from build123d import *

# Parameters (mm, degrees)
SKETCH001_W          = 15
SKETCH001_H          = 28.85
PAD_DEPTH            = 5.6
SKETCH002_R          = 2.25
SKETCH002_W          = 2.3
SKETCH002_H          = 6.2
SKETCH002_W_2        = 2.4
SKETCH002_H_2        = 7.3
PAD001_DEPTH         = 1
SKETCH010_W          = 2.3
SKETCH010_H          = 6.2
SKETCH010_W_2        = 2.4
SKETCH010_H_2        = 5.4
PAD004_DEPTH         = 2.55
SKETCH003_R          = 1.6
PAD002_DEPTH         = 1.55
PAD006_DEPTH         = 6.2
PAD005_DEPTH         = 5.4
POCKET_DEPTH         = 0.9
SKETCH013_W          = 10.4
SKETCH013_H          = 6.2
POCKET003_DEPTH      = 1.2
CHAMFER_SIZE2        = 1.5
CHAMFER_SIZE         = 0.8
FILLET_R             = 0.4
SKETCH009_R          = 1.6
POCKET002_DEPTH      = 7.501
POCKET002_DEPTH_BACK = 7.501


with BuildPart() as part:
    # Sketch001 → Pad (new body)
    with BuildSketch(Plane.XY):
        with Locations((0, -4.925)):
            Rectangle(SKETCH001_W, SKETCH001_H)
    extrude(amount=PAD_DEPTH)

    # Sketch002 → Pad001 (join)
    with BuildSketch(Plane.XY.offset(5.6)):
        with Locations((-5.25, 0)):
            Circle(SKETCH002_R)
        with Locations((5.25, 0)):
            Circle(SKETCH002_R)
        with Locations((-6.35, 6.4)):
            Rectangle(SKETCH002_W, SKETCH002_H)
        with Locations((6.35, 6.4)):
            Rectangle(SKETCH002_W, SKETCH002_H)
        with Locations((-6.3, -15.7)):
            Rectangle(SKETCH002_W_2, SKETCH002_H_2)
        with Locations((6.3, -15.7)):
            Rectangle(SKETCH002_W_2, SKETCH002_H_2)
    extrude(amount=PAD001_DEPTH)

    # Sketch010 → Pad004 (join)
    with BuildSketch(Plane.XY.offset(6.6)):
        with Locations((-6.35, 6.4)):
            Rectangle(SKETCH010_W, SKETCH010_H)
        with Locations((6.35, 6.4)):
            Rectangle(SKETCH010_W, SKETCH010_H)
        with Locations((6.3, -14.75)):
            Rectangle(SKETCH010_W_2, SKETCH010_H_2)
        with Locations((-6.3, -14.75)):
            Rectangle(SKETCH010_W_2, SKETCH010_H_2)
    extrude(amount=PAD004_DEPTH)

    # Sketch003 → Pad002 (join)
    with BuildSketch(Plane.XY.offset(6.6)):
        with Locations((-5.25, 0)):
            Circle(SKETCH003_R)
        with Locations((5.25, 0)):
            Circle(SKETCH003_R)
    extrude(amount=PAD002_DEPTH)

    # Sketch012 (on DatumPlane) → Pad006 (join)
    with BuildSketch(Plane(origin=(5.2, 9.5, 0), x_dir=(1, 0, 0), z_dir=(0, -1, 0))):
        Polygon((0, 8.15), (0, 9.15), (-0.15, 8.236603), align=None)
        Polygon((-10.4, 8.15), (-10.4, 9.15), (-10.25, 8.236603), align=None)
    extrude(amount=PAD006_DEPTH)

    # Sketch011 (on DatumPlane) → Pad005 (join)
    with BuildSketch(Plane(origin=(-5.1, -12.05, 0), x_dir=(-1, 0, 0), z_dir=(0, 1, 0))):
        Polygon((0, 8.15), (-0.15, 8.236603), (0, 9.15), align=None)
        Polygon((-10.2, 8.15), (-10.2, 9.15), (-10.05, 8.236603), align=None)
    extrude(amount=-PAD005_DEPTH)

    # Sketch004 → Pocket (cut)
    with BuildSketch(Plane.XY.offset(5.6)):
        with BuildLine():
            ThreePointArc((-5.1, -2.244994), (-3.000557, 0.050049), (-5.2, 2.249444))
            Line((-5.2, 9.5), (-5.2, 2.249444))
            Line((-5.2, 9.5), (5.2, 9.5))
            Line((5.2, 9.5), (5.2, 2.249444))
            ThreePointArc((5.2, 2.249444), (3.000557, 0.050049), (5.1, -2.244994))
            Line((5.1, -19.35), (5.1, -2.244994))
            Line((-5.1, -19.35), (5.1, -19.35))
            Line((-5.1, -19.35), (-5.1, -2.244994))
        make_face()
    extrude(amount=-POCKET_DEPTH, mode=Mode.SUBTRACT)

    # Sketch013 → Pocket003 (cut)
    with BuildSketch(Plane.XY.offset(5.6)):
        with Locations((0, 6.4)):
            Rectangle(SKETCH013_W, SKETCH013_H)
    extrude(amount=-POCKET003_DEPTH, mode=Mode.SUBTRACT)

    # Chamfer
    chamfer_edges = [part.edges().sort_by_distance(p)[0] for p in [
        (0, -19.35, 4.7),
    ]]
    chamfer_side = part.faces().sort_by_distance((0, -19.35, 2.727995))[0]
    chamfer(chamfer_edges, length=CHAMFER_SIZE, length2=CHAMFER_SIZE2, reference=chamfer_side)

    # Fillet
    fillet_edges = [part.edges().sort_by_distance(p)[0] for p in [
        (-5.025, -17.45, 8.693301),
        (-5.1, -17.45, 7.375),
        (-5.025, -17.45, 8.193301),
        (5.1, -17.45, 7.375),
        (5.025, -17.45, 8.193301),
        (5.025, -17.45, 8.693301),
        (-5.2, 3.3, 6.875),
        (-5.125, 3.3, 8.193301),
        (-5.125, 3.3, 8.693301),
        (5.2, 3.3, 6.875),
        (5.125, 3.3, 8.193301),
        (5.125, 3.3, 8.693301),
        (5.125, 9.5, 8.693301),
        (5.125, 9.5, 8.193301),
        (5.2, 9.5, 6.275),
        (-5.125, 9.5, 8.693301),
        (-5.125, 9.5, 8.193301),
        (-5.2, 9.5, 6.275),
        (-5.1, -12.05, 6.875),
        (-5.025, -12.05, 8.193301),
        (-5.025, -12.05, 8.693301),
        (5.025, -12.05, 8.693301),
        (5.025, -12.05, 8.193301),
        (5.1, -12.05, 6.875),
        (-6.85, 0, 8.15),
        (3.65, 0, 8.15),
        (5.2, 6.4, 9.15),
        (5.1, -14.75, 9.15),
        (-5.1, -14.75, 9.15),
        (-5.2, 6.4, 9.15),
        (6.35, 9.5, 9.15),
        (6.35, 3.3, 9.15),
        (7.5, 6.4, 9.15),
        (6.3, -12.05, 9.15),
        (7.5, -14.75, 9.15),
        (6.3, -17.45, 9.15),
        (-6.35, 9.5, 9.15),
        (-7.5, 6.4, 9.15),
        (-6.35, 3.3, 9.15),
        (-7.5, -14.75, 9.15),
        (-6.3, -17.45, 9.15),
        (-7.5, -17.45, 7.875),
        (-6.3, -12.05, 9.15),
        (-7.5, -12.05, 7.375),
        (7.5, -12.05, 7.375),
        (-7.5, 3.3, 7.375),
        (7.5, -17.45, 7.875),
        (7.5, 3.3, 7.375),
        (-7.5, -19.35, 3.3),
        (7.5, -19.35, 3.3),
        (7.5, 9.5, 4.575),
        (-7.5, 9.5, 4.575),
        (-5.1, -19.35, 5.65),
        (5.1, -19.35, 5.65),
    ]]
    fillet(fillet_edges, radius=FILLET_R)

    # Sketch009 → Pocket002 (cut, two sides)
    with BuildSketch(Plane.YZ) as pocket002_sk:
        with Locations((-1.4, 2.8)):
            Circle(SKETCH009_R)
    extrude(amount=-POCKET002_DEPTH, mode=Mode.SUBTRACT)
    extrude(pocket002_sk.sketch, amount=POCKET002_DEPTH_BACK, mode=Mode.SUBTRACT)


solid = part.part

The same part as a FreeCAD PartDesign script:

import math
import FreeCAD as App
import Part
import Sketcher
from FreeCAD import Vector


def edges_at(feature, points):
    """Names of the edges that pass closest to the given points."""
    edges = feature.Shape.Edges
    near = lambda p: min(range(len(edges)), key=lambda i: edges[i].distToShape(Part.Vertex(*p))[0])
    return sorted({f"Edge{near(p) + 1}" for p in points})


def add_polygon(sketch, points):
    """Adds a closed chain of lines whose ends are joined by coincident constraints."""
    first, n = sketch.GeometryCount, len(points)
    for a, b in zip(points, points[1:] + points[:1]):
        sketch.addGeometry(Part.LineSegment(App.Vector(*a, 0), App.Vector(*b, 0)), False)
    for i in range(n):
        sketch.addConstraint(Sketcher.Constraint("Coincident", first + i, 2, first + (i + 1) % n, 1))

doc = App.newDocument("Part")
body = doc.addObject("PartDesign::Body", "Body")

# Sketch on XY plane
sketch1 = body.newObject("Sketcher::SketchObject", "Sketch")
sketch1.AttachmentSupport = (doc.getObject("XY_Plane"), [""])
sketch1.MapMode = "FlatFace"
add_polygon(sketch1, [(-7.5, 9.5), (-7.5, -19.35), (7.5, -19.35), (7.5, 9.5)])  # lines 0-3
sketch1.addConstraint(Sketcher.Constraint("Vertical", 0))
sketch1.addConstraint(Sketcher.Constraint("Horizontal", 1))
sketch1.addConstraint(Sketcher.Constraint("Vertical", 2))
sketch1.addConstraint(Sketcher.Constraint("Horizontal", 3))
sketch1.addConstraint(Sketcher.Constraint("DistanceX", 1, 1, 1, 2, 15.0))
sketch1.addConstraint(Sketcher.Constraint("DistanceY", 0, 2, 0, 1, 28.85))
sketch1.addConstraint(Sketcher.Constraint("DistanceX", 0, 2, -1, 1, 7.5))
sketch1.addConstraint(Sketcher.Constraint("DistanceY", -1, 1, 2, 2, 9.5))
pad1 = body.newObject("PartDesign::Pad", "Pad")
pad1.Profile = sketch1
pad1.Length = 5.6

# Sketch on XY plane
sketch2 = body.newObject("Sketcher::SketchObject", "Sketch001")
sketch2.AttachmentSupport = (doc.getObject("XY_Plane"), [""])
sketch2.MapMode = "FlatFace"
sketch2.AttachmentOffset = App.Placement(Vector(0, 0, 5.6), App.Rotation())
sketch2.addGeometry(Part.Circle(Vector(-5.25, 0, 0), Vector(0, 0, 1), 2.25), False)  # 0
sketch2.addGeometry(Part.Circle(Vector(5.25, 0, 0), Vector(0, 0, 1), 2.25), False)  # 1
add_polygon(sketch2, [(-7.5, 9.5), (-7.5, 3.3), (-5.2, 3.3), (-5.2, 9.5)])  # lines 2-5
add_polygon(sketch2, [(5.2, 9.5), (5.2, 3.3), (7.5, 3.3), (7.5, 9.5)])  # lines 6-9
add_polygon(sketch2, [(-7.5, -12.05), (-7.5, -19.35), (-5.1, -19.35), (-5.1, -12.05)])  # lines 10-13
add_polygon(sketch2, [(5.1, -12.05), (5.1, -19.35), (7.5, -19.35), (7.5, -12.05)])  # lines 14-17
sketch2.addConstraint(Sketcher.Constraint("Vertical", 2))
sketch2.addConstraint(Sketcher.Constraint("Horizontal", 3))
sketch2.addConstraint(Sketcher.Constraint("Vertical", 4))
sketch2.addConstraint(Sketcher.Constraint("Horizontal", 5))
sketch2.addConstraint(Sketcher.Constraint("Vertical", 6))
sketch2.addConstraint(Sketcher.Constraint("Horizontal", 7))
sketch2.addConstraint(Sketcher.Constraint("Vertical", 8))
sketch2.addConstraint(Sketcher.Constraint("Horizontal", 9))
sketch2.addConstraint(Sketcher.Constraint("Vertical", 10))
sketch2.addConstraint(Sketcher.Constraint("Horizontal", 11))
sketch2.addConstraint(Sketcher.Constraint("Vertical", 12))
sketch2.addConstraint(Sketcher.Constraint("Horizontal", 13))
sketch2.addConstraint(Sketcher.Constraint("Vertical", 14))
sketch2.addConstraint(Sketcher.Constraint("Horizontal", 15))
sketch2.addConstraint(Sketcher.Constraint("Vertical", 16))
sketch2.addConstraint(Sketcher.Constraint("Horizontal", 17))
sketch2.addConstraint(Sketcher.Constraint("Equal", 0, 1))
sketch2.addConstraint(Sketcher.Constraint("Symmetric", 0, 3, 1, 3, -1, 1))
sketch2.addConstraint(Sketcher.Constraint("Symmetric", 3, 2, 6, 2, -2))
sketch2.addConstraint(Sketcher.Constraint("Symmetric", 5, 2, 8, 2, -2))
sketch2.addConstraint(Sketcher.Constraint("Symmetric", 11, 2, 14, 2, -2))
sketch2.addConstraint(Sketcher.Constraint("Symmetric", 13, 2, 16, 2, -2))
sketch2.addConstraint(Sketcher.Constraint("PointOnObject", 0, 3, -1))
sketch2.addConstraint(Sketcher.Constraint("Vertical", 5, 2, 10, 2))
sketch2.addConstraint(Sketcher.Constraint("Diameter", 0, 4.5))
sketch2.addConstraint(Sketcher.Constraint("DistanceX", 3, 1, 3, 2, 2.3))
sketch2.addConstraint(Sketcher.Constraint("DistanceX", 11, 1, 11, 2, 2.4))
sketch2.addConstraint(Sketcher.Constraint("DistanceY", 2, 2, 2, 1, 6.2))
sketch2.addConstraint(Sketcher.Constraint("DistanceY", 10, 2, 10, 1, 7.3))
sketch2.addConstraint(Sketcher.Constraint("DistanceX", 10, 2, 15, 2, 15.0))
sketch2.addConstraint(Sketcher.Constraint("DistanceY", -1, 1, 2, 2, 3.3))
sketch2.addConstraint(Sketcher.Constraint("DistanceX", 0, 3, 1, 3, 10.5))
sketch2.addConstraint(Sketcher.Constraint("DistanceY", 10, 2, -1, 1, 19.35))
pad2 = body.newObject("PartDesign::Pad", "Pad001")
pad2.Profile = sketch2
pad2.Length = 1

# Sketch on XY plane
sketch3 = body.newObject("Sketcher::SketchObject", "Sketch002")
sketch3.AttachmentSupport = (doc.getObject("XY_Plane"), [""])
sketch3.MapMode = "FlatFace"
sketch3.AttachmentOffset = App.Placement(Vector(0, 0, 6.6), App.Rotation())
add_polygon(sketch3, [(-7.5, 9.5), (-7.5, 3.3), (-5.2, 3.3), (-5.2, 9.5)])  # lines 0-3
add_polygon(sketch3, [(5.2, 9.5), (5.2, 3.3), (7.5, 3.3), (7.5, 9.5)])  # lines 4-7
add_polygon(sketch3, [(5.1, -12.05), (5.1, -17.45), (7.5, -17.45), (7.5, -12.05)])  # lines 8-11
add_polygon(sketch3, [(-7.5, -12.05), (-7.5, -17.45), (-5.1, -17.45), (-5.1, -12.05)])  # lines 12-15
sketch3.addConstraint(Sketcher.Constraint("Vertical", 0))
sketch3.addConstraint(Sketcher.Constraint("Horizontal", 1))
sketch3.addConstraint(Sketcher.Constraint("Vertical", 2))
sketch3.addConstraint(Sketcher.Constraint("Horizontal", 3))
sketch3.addConstraint(Sketcher.Constraint("Vertical", 4))
sketch3.addConstraint(Sketcher.Constraint("Horizontal", 5))
sketch3.addConstraint(Sketcher.Constraint("Vertical", 6))
sketch3.addConstraint(Sketcher.Constraint("Horizontal", 7))
sketch3.addConstraint(Sketcher.Constraint("Vertical", 8))
sketch3.addConstraint(Sketcher.Constraint("Horizontal", 9))
sketch3.addConstraint(Sketcher.Constraint("Vertical", 10))
sketch3.addConstraint(Sketcher.Constraint("Horizontal", 11))
sketch3.addConstraint(Sketcher.Constraint("Vertical", 12))
sketch3.addConstraint(Sketcher.Constraint("Horizontal", 13))
sketch3.addConstraint(Sketcher.Constraint("Vertical", 14))
sketch3.addConstraint(Sketcher.Constraint("Horizontal", 15))
sketch3.addConstraint(Sketcher.Constraint("Symmetric", 1, 2, 4, 2, -2))
sketch3.addConstraint(Sketcher.Constraint("Symmetric", 3, 2, 6, 2, -2))
sketch3.addConstraint(Sketcher.Constraint("Symmetric", 9, 2, 12, 2, -2))
sketch3.addConstraint(Sketcher.Constraint("Symmetric", 11, 2, 14, 2, -2))
sketch3.addConstraint(Sketcher.Constraint("Vertical", 6, 2, 9, 2))
sketch3.addConstraint(Sketcher.Constraint("DistanceX", 1, 1, 1, 2, 2.3))
sketch3.addConstraint(Sketcher.Constraint("DistanceX", 9, 1, 9, 2, 2.4))
sketch3.addConstraint(Sketcher.Constraint("DistanceY", 0, 2, 0, 1, 6.2))
sketch3.addConstraint(Sketcher.Constraint("DistanceY", 8, 2, 8, 1, 5.4))
sketch3.addConstraint(Sketcher.Constraint("DistanceX", 0, 2, 5, 2, 15.0))
sketch3.addConstraint(Sketcher.Constraint("DistanceY", -1, 1, 0, 2, 3.3))
sketch3.addConstraint(Sketcher.Constraint("DistanceY", 8, 2, -1, 1, 17.45))
pad3 = body.newObject("PartDesign::Pad", "Pad002")
pad3.Profile = sketch3
pad3.Length = 2.55

# Sketch on XY plane
sketch4 = body.newObject("Sketcher::SketchObject", "Sketch003")
sketch4.AttachmentSupport = (doc.getObject("XY_Plane"), [""])
sketch4.MapMode = "FlatFace"
sketch4.AttachmentOffset = App.Placement(Vector(0, 0, 6.6), App.Rotation())
sketch4.addGeometry(Part.Circle(Vector(-5.25, 0, 0), Vector(0, 0, 1), 1.6), False)
sketch4.addGeometry(Part.Circle(Vector(5.25, 0, 0), Vector(0, 0, 1), 1.6), False)
sketch4.addConstraint(Sketcher.Constraint("Equal", 0, 1))
sketch4.addConstraint(Sketcher.Constraint("Symmetric", 0, 3, 1, 3, -1, 1))
sketch4.addConstraint(Sketcher.Constraint("PointOnObject", 0, 3, -1))
sketch4.addConstraint(Sketcher.Constraint("Diameter", 0, 3.2))
sketch4.addConstraint(Sketcher.Constraint("DistanceX", 0, 3, 1, 3, 10.5))
pad4 = body.newObject("PartDesign::Pad", "Pad003")
pad4.Profile = sketch4
pad4.Length = 1.55

# Sketch on XZ plane
sketch5 = body.newObject("Sketcher::SketchObject", "Sketch004")
sketch5.AttachmentSupport = (doc.getObject("XZ_Plane"), [""])
sketch5.MapMode = "FlatFace"
sketch5.AttachmentOffset = App.Placement(Vector(0, 0, -9.5), App.Rotation())
add_polygon(sketch5, [(5.2, 8.15), (5.2, 9.15), (5.05, 8.236603)])  # lines 0-2
add_polygon(sketch5, [(-5.2, 9.15), (-5.2, 8.15), (-5.05, 8.236603)])  # lines 3-5
sketch5.addConstraint(Sketcher.Constraint("Vertical", 0))
sketch5.addConstraint(Sketcher.Constraint("Vertical", 3))
sketch5.addConstraint(Sketcher.Constraint("Symmetric", 2, 2, 3, 2, -2))
sketch5.addConstraint(Sketcher.Constraint("Symmetric", 1, 2, 4, 2, -2))
sketch5.addConstraint(Sketcher.Constraint("Horizontal", 0, 2, 5, 2))
sketch5.addConstraint(Sketcher.Constraint("DistanceY", 0, 1, 0, 2, 1.0))
sketch5.addConstraint(Sketcher.Constraint("DistanceX", -1, 1, 0, 2, 5.2))
sketch5.addConstraint(Sketcher.Constraint("DistanceX", 4, 2, 1, 2, 10.1))
sketch5.addConstraint(Sketcher.Constraint("DistanceY", -1, 1, 0, 2, 9.15))
sketch5.addConstraint(Sketcher.Constraint("Distance", 1, 0.925632))
pad5 = body.newObject("PartDesign::Pad", "Pad004")
pad5.Profile = sketch5
pad5.Length = 6.2

# Sketch on XZ plane
sketch6 = body.newObject("Sketcher::SketchObject", "Sketch005")
sketch6.AttachmentSupport = (doc.getObject("XZ_Plane"), [""])
sketch6.MapMode = "FlatFace"
sketch6.AttachmentOffset = App.Placement(Vector(0, 0, 12.05), App.Rotation())
add_polygon(sketch6, [(-4.95, 8.236603), (-5.1, 8.15), (-5.1, 9.15)])  # lines 0-2
add_polygon(sketch6, [(5.1, 9.15), (5.1, 8.15), (4.95, 8.236603)])  # lines 3-5
sketch6.addConstraint(Sketcher.Constraint("Vertical", 1))
sketch6.addConstraint(Sketcher.Constraint("Vertical", 3))
sketch6.addConstraint(Sketcher.Constraint("Symmetric", 0, 2, 3, 2, -2))
sketch6.addConstraint(Sketcher.Constraint("Symmetric", 2, 2, 4, 2, -2))
sketch6.addConstraint(Sketcher.Constraint("Horizontal", 1, 2, 5, 2))
sketch6.addConstraint(Sketcher.Constraint("DistanceY", 1, 1, 1, 2, 1.0))
sketch6.addConstraint(Sketcher.Constraint("DistanceX", 0, 2, -1, 1, 5.1))
sketch6.addConstraint(Sketcher.Constraint("DistanceX", 2, 2, 4, 2, 9.9))
sketch6.addConstraint(Sketcher.Constraint("DistanceY", -1, 1, 0, 2, 8.15))
sketch6.addConstraint(Sketcher.Constraint("Distance", 2, 0.925632))
pad6 = body.newObject("PartDesign::Pad", "Pad005")
pad6.Profile = sketch6
pad6.Length = 5.4

# Sketch on XY plane
sketch7 = body.newObject("Sketcher::SketchObject", "Sketch006")
sketch7.AttachmentSupport = (doc.getObject("XY_Plane"), [""])
sketch7.MapMode = "FlatFace"
sketch7.AttachmentOffset = App.Placement(Vector(0, 0, 5.6), App.Rotation())
sketch7.addGeometry(Part.ArcOfCircle(Part.Circle(Vector(-5.25, 0, 0), Vector(0, 0, 1), 2.25), math.radians(-86.177449), math.radians(88.726659)), False)
sketch7.addGeometry(Part.LineSegment(Vector(-5.1, -2.244994, 0), Vector(-5.1, -19.35, 0)), False)
sketch7.addGeometry(Part.LineSegment(Vector(-5.1, -19.35, 0), Vector(5.1, -19.35, 0)), False)
sketch7.addGeometry(Part.LineSegment(Vector(5.1, -19.35, 0), Vector(5.1, -2.244994, 0)), False)
sketch7.addGeometry(Part.ArcOfCircle(Part.Circle(Vector(5.25, 0, 0), Vector(0, 0, 1), 2.25), math.radians(91.273341), math.radians(266.177449)), False)
sketch7.addGeometry(Part.LineSegment(Vector(5.2, 2.249444, 0), Vector(5.2, 9.5, 0)), False)
sketch7.addGeometry(Part.LineSegment(Vector(5.2, 9.5, 0), Vector(-5.2, 9.5, 0)), False)
sketch7.addGeometry(Part.LineSegment(Vector(-5.2, 9.5, 0), Vector(-5.2, 2.249444, 0)), False)
sketch7.addConstraint(Sketcher.Constraint("Coincident", 0, 1, 1, 1))
sketch7.addConstraint(Sketcher.Constraint("Coincident", 1, 2, 2, 1))
sketch7.addConstraint(Sketcher.Constraint("Coincident", 2, 2, 3, 1))
sketch7.addConstraint(Sketcher.Constraint("Coincident", 3, 2, 4, 2))
sketch7.addConstraint(Sketcher.Constraint("Coincident", 4, 1, 5, 1))
sketch7.addConstraint(Sketcher.Constraint("Coincident", 5, 2, 6, 1))
sketch7.addConstraint(Sketcher.Constraint("Coincident", 6, 2, 7, 1))
sketch7.addConstraint(Sketcher.Constraint("Coincident", 7, 2, 0, 2))
sketch7.addConstraint(Sketcher.Constraint("Vertical", 1))
sketch7.addConstraint(Sketcher.Constraint("Horizontal", 2))
sketch7.addConstraint(Sketcher.Constraint("Vertical", 3))
sketch7.addConstraint(Sketcher.Constraint("Vertical", 5))
sketch7.addConstraint(Sketcher.Constraint("Horizontal", 6))
sketch7.addConstraint(Sketcher.Constraint("Vertical", 7))
sketch7.addConstraint(Sketcher.Constraint("Equal", 0, 4))
sketch7.addConstraint(Sketcher.Constraint("Symmetric", 0, 3, 4, 3, -1, 1))
sketch7.addConstraint(Sketcher.Constraint("Symmetric", 0, 1, 3, 2, -2))
sketch7.addConstraint(Sketcher.Constraint("Horizontal", 4, 1, 7, 2))
sketch7.addConstraint(Sketcher.Constraint("Radius", 0, 2.25))
sketch7.addConstraint(Sketcher.Constraint("DistanceX", 2, 1, 2, 2, 10.2))
sketch7.addConstraint(Sketcher.Constraint("DistanceX", 6, 2, 6, 1, 10.4))
sketch7.addConstraint(Sketcher.Constraint("DistanceY", -1, 1, 5, 2, 9.5))
sketch7.addConstraint(Sketcher.Constraint("DistanceX", 0, 3, 4, 3, 10.5))
sketch7.addConstraint(Sketcher.Constraint("DistanceY", 1, 2, -1, 1, 19.35))
pocket1 = body.newObject("PartDesign::Pocket", "Pocket")
pocket1.Profile = sketch7
pocket1.Length = 0.9

# Sketch on XY plane
sketch8 = body.newObject("Sketcher::SketchObject", "Sketch007")
sketch8.AttachmentSupport = (doc.getObject("XY_Plane"), [""])
sketch8.MapMode = "FlatFace"
sketch8.AttachmentOffset = App.Placement(Vector(0, 0, 5.6), App.Rotation())
add_polygon(sketch8, [(-5.2, 9.5), (-5.2, 3.3), (5.2, 3.3), (5.2, 9.5)])  # lines 0-3
sketch8.addConstraint(Sketcher.Constraint("Vertical", 0))
sketch8.addConstraint(Sketcher.Constraint("Horizontal", 1))
sketch8.addConstraint(Sketcher.Constraint("Vertical", 2))
sketch8.addConstraint(Sketcher.Constraint("Horizontal", 3))
sketch8.addConstraint(Sketcher.Constraint("DistanceX", 1, 1, 1, 2, 10.4))
sketch8.addConstraint(Sketcher.Constraint("DistanceY", 0, 2, 0, 1, 6.2))
sketch8.addConstraint(Sketcher.Constraint("DistanceX", 0, 2, -1, 1, 5.2))
sketch8.addConstraint(Sketcher.Constraint("DistanceY", -1, 1, 0, 2, 3.3))
pocket2 = body.newObject("PartDesign::Pocket", "Pocket001")
pocket2.Profile = sketch8
pocket2.Length = 1.2
doc.recompute()

chamfer = body.newObject("PartDesign::Chamfer", "Chamfer")
chamfer.Base = (pocket2, edges_at(pocket2, [(0, -19.35, 4.7)]))
chamfer.ChamferType = "Two distances"
chamfer.Size = 0.8
chamfer.Size2 = 1.5
doc.recompute()

fillet = body.newObject("PartDesign::Fillet", "Fillet")
fillet.Base = (chamfer, edges_at(chamfer, [
    (-5.025, -17.45, 8.693),
    (-5.1, -17.45, 7.375),
    (-5.025, -17.45, 8.193),
    (5.1, -17.45, 7.375),
    (5.025, -17.45, 8.193),
    (5.025, -17.45, 8.693),
    (-5.2, 3.3, 6.875),
    (-5.125, 3.3, 8.193),
    (-5.125, 3.3, 8.693),
    (5.2, 3.3, 6.875),
    (5.125, 3.3, 8.193),
    (5.125, 3.3, 8.693),
    (5.125, 9.5, 8.693),
    (5.125, 9.5, 8.193),
    (5.2, 9.5, 6.275),
    (-5.125, 9.5, 8.693),
    (-5.125, 9.5, 8.193),
    (-5.2, 9.5, 6.275),
    (-5.1, -12.05, 6.875),
    (-5.025, -12.05, 8.193),
    (-5.025, -12.05, 8.693),
    (5.025, -12.05, 8.693),
    (5.025, -12.05, 8.193),
    (5.1, -12.05, 6.875),
    (-6.85, 0, 8.15),
    (3.65, 0, 8.15),
    (5.2, 6.4, 9.15),
    (5.1, -14.75, 9.15),
    (-5.1, -14.75, 9.15),
    (-5.2, 6.4, 9.15),
    (6.35, 9.5, 9.15),
    (6.35, 3.3, 9.15),
    (7.5, 6.4, 9.15),
    (6.3, -12.05, 9.15),
    (7.5, -14.75, 9.15),
    (6.3, -17.45, 9.15),
    (-6.35, 9.5, 9.15),
    (-7.5, 6.4, 9.15),
    (-6.35, 3.3, 9.15),
    (-7.5, -14.75, 9.15),
    (-6.3, -17.45, 9.15),
    (-7.5, -17.45, 7.875),
    (-6.3, -12.05, 9.15),
    (-7.5, -12.05, 7.375),
    (7.5, -12.05, 7.375),
    (-7.5, 3.3, 7.375),
    (7.5, -17.45, 7.875),
    (7.5, 3.3, 7.375),
    (-7.5, -19.35, 3.3),
    (7.5, -19.35, 3.3),
    (7.5, 9.5, 4.575),
    (-7.5, 9.5, 4.575),
    (-5.1, -19.35, 5.25),
    (5.1, -19.35, 5.25),
]))
fillet.Radius = 0.4

# Sketch on YZ plane
sketch9 = body.newObject("Sketcher::SketchObject", "Sketch008")
sketch9.AttachmentSupport = (doc.getObject("YZ_Plane"), [""])
sketch9.MapMode = "FlatFace"
sketch9.addGeometry(Part.Circle(Vector(-1.4, 2.8, 0), Vector(0, 0, 1), 1.6), False)
sketch9.addConstraint(Sketcher.Constraint("Diameter", 0, 3.2))
sketch9.addConstraint(Sketcher.Constraint("DistanceX", 0, 3, -1, 1, 1.4))
sketch9.addConstraint(Sketcher.Constraint("DistanceY", -1, 1, 0, 3, 2.8))
pocket3 = body.newObject("PartDesign::Pocket", "Pocket002")
pocket3.Profile = sketch9
pocket3.Type = "ThroughAll"
pocket3.Midplane = True

doc.recompute()
